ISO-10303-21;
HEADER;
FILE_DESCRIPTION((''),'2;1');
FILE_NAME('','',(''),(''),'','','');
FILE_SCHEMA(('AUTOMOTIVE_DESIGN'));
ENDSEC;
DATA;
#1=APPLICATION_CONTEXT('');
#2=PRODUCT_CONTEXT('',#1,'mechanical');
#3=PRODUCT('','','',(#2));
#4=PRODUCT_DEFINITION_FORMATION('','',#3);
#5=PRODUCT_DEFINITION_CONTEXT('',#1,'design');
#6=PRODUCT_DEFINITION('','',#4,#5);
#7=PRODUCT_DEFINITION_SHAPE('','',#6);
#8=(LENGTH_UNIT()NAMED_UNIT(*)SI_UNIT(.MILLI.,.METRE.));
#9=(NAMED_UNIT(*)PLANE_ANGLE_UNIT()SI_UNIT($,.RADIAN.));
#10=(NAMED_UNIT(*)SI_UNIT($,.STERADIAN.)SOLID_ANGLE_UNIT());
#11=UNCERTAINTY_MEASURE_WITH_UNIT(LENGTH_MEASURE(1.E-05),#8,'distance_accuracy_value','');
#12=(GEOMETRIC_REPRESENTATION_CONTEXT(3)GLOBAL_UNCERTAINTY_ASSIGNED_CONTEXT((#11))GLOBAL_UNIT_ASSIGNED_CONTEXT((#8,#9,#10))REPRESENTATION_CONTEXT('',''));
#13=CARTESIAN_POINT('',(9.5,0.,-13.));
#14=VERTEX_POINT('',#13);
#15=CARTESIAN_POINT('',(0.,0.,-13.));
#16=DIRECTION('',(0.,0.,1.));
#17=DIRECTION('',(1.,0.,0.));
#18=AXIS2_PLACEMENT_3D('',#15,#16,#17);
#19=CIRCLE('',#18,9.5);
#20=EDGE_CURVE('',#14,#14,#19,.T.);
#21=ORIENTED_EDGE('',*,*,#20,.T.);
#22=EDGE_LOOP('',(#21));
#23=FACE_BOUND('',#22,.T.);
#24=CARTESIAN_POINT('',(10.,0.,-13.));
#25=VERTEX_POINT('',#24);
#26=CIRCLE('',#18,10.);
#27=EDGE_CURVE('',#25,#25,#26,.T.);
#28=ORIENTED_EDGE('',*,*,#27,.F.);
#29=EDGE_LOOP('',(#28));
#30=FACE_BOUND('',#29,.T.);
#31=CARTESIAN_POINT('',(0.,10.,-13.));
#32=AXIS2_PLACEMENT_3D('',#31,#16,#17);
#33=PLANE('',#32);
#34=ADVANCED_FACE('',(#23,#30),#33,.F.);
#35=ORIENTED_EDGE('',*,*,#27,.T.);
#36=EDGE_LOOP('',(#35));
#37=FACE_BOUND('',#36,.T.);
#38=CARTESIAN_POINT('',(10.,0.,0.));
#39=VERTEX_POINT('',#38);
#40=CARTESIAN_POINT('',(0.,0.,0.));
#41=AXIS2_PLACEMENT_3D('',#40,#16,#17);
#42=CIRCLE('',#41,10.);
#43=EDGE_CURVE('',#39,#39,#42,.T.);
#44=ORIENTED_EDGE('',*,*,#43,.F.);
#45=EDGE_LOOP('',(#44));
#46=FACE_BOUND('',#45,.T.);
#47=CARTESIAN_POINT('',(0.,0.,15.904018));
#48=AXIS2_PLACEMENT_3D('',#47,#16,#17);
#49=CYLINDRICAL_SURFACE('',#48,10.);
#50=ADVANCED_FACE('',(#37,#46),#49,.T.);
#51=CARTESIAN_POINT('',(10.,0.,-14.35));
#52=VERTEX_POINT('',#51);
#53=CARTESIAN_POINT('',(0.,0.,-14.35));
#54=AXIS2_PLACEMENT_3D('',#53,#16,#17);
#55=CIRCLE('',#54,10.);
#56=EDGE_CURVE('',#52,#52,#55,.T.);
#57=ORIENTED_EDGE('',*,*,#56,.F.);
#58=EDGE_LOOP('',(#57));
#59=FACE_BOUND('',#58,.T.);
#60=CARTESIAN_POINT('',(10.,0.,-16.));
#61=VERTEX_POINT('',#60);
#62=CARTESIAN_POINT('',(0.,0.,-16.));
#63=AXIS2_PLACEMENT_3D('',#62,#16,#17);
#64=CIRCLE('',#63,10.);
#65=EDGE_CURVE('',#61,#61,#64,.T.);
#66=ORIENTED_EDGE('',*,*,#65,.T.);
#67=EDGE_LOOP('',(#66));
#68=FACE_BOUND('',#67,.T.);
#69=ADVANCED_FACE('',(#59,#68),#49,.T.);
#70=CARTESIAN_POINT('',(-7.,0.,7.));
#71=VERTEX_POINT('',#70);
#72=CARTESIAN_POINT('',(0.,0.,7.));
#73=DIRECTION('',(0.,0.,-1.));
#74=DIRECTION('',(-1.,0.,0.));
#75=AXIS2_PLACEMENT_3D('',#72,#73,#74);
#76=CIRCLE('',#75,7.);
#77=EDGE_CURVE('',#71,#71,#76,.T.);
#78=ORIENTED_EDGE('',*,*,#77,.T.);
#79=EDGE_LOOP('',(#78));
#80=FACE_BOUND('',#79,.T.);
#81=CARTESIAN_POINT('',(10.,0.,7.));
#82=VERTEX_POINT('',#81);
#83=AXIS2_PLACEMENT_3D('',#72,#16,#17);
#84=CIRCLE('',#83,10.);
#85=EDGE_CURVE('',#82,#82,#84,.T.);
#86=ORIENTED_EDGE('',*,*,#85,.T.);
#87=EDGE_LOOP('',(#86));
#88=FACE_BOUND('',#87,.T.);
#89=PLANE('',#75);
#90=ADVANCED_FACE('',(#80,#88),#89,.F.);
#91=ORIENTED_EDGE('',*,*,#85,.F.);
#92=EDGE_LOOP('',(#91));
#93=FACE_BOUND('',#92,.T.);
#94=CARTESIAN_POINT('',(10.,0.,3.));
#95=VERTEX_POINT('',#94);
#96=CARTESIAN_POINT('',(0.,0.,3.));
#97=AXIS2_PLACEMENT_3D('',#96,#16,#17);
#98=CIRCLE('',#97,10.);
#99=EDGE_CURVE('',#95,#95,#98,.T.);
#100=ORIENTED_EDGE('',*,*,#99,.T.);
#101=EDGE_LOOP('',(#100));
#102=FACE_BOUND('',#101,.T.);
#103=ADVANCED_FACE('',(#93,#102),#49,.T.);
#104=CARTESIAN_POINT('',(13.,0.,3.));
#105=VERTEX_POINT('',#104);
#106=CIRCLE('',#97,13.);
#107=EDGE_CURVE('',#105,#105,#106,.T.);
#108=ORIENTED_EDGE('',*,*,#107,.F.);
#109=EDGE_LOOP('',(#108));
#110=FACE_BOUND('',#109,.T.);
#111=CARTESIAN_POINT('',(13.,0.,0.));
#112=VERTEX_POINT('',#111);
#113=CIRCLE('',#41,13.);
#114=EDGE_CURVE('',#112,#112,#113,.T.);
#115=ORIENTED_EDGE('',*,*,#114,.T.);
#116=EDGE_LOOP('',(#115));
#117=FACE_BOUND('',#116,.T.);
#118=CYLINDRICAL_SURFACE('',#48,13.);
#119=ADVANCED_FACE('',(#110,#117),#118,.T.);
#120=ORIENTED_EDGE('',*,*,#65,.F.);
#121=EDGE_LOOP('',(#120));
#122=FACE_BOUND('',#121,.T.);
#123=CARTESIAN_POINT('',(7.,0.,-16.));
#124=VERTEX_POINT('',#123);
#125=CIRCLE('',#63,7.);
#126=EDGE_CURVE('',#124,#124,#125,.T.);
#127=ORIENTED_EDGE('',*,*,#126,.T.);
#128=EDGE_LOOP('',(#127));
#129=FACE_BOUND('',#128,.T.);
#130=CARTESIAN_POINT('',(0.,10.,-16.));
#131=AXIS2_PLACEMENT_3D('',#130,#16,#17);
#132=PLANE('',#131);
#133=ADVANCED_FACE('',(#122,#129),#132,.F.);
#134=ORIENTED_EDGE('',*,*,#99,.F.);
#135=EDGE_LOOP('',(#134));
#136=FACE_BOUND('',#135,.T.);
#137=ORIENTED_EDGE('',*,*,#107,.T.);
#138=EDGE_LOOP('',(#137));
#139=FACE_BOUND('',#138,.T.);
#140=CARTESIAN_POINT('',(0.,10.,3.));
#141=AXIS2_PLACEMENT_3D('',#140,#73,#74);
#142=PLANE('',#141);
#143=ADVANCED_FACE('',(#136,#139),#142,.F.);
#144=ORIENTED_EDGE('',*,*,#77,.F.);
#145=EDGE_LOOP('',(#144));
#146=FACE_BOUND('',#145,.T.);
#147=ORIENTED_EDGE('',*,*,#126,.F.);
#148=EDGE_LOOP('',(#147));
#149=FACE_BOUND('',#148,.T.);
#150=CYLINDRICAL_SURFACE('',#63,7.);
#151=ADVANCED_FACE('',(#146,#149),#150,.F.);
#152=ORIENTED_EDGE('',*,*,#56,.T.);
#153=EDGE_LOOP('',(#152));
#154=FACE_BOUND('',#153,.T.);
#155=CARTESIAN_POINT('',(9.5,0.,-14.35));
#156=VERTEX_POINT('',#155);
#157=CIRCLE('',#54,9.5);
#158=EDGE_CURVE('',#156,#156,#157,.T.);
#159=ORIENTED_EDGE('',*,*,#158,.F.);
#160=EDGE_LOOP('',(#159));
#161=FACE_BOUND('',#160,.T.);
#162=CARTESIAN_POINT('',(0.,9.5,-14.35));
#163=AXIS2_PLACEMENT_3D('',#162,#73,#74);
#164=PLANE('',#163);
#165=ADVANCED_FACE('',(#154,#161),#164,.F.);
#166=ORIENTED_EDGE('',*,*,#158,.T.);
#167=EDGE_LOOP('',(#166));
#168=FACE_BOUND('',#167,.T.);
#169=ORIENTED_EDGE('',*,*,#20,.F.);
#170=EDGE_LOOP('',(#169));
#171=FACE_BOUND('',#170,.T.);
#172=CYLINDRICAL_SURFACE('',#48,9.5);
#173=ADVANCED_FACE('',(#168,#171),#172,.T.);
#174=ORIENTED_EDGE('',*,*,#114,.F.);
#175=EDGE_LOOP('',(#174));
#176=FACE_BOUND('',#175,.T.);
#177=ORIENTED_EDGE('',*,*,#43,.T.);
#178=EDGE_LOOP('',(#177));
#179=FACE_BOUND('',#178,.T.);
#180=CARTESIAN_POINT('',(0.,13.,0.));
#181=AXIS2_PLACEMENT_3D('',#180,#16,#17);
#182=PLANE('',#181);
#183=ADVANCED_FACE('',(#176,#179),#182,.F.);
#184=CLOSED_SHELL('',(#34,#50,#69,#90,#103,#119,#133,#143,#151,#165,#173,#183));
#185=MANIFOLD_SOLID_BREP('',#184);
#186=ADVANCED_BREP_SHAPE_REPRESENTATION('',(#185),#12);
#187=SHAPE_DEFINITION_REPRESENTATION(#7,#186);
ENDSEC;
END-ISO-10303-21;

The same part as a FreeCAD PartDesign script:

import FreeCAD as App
import Part
import Sketcher
from FreeCAD import Vector


def add_polygon(sketch, points):
    """Adds a closed chain of lines whose ends are joined by coincident constraints."""
    first, n = sketch.GeometryCount, len(points)
    for a, b in zip(points, points[1:] + points[:1]):
        sketch.addGeometry(Part.LineSegment(App.Vector(*a, 0), App.Vector(*b, 0)), False)
    for i in range(n):
        sketch.addConstraint(Sketcher.Constraint("Coincident", first + i, 2, first + (i + 1) % n, 1))

doc = App.newDocument("Part")
params = doc.addObject("Spreadsheet::Sheet", "Params")
for row, (alias, value) in enumerate([
    ("sketch1_width", "10 mm"),
    ("sketch1_width2", "3 mm"),
    ("sketch1_height", "23 mm"),
    ("sketch1_height2", "13 mm"),
    ("sketch1_height3", "4 mm"),
    ("revolution_angle", "360 deg"),
    ("sketch2_diameter", "14 mm"),
], start=1):
    params.set(f"A{row}", alias)
    params.set(f"B{row}", "=" + value)
    params.setAlias(f"B{row}", alias)

body = doc.addObject("PartDesign::Body", "Body")

sketch1 = body.newObject("Sketcher::SketchObject", "Sketch")
sketch1.AttachmentSupport = (doc.getObject("YZ_Plane"), [""])
sketch1.MapMode = "FlatFace"
add_polygon(sketch1, [(10, 7), (0, 7), (0, -16), (10, -16), (10, -14.35), (9.5, -14.35), (9.5, -13), (10, -13), (10, 0), (13, 0), (13, 3), (10, 3)])
sketch1.addConstraint(Sketcher.Constraint("Horizontal", 0))
sketch1.addConstraint(Sketcher.Constraint("Vertical", 1))
sketch1.addConstraint(Sketcher.Constraint("Horizontal", 2))
sketch1.addConstraint(Sketcher.Constraint("Vertical", 3))
sketch1.addConstraint(Sketcher.Constraint("Horizontal", 4))
sketch1.addConstraint(Sketcher.Constraint("Vertical", 5))
sketch1.addConstraint(Sketcher.Constraint("Horizontal", 6))
sketch1.addConstraint(Sketcher.Constraint("Vertical", 7))
sketch1.addConstraint(Sketcher.Constraint("Horizontal", 8))
sketch1.addConstraint(Sketcher.Constraint("Vertical", 9))
sketch1.addConstraint(Sketcher.Constraint("Horizontal", 10))
sketch1.addConstraint(Sketcher.Constraint("Vertical", 11))
sketch1.addConstraint(Sketcher.Constraint("PointOnObject", 0, 2, -2))
sketch1.addConstraint(Sketcher.Constraint("PointOnObject", 7, 2, -1))
sketch1.addConstraint(Sketcher.Constraint("Vertical", 3, 2, 6, 2))
sketch1.addConstraint(Sketcher.Constraint("Vertical", 7, 2, 10, 2))
sketch1.addConstraint(Sketcher.Constraint("Equal", 10, 9))
sketch1.addConstraint(Sketcher.Constraint("DistanceX", 0, 2, 0, 1, 10.0))
sketch1.addConstraint(Sketcher.Constraint("DistanceX", 8, 1, 8, 2, 3.0))
sketch1.addConstraint(Sketcher.Constraint("DistanceY", 1, 2, 1, 1, 23.0))
sketch1.addConstraint(Sketcher.Constraint("DistanceY", 7, 1, 7, 2, 13.0))
sketch1.addConstraint(Sketcher.Constraint("DistanceY", 11, 1, 11, 2, 4.0))
sketch1.addConstraint(Sketcher.Constraint("DistanceX", 4, 2, 4, 1, 0.5))
sketch1.addConstraint(Sketcher.Constraint("DistanceY", 3, 1, 3, 2, 1.65))
sketch1.setExpression("Constraints[29]", "Params.sketch1_width")
sketch1.setExpression("Constraints[30]", "Params.sketch1_width2")
sketch1.setExpression("Constraints[31]", "Params.sketch1_height")
sketch1.setExpression("Constraints[32]", "Params.sketch1_height2")
sketch1.setExpression("Constraints[33]", "Params.sketch1_height3")
revolution = body.newObject("PartDesign::Revolution", "Revolution")
revolution.Profile = sketch1
revolution.ReferenceAxis = (sketch1, ["V_Axis"])
revolution.setExpression("Angle", "Params.revolution_angle")

sketch2 = body.newObject("Sketcher::SketchObject", "Sketch001")
sketch2.AttachmentSupport = (doc.getObject("XY_Plane"), [""])
sketch2.MapMode = "FlatFace"
sketch2.AttachmentOffset = App.Placement(Vector(0, 0, 7), App.Rotation())
sketch2.addGeometry(Part.Circle(Vector(0, 0, 0), Vector(0, 0, 1), 7), False)
sketch2.addConstraint(Sketcher.Constraint("Coincident", 0, 3, -1, 1))
sketch2.addConstraint(Sketcher.Constraint("Diameter", 0, 14.0))
sketch2.setExpression("Constraints[1]", "Params.sketch2_diameter")
pocket1 = body.newObject("PartDesign::Pocket", "Pocket")
pocket1.Profile = sketch2
pocket1.Type = "ThroughAll"
pocket1.Midplane = True

doc.recompute()
